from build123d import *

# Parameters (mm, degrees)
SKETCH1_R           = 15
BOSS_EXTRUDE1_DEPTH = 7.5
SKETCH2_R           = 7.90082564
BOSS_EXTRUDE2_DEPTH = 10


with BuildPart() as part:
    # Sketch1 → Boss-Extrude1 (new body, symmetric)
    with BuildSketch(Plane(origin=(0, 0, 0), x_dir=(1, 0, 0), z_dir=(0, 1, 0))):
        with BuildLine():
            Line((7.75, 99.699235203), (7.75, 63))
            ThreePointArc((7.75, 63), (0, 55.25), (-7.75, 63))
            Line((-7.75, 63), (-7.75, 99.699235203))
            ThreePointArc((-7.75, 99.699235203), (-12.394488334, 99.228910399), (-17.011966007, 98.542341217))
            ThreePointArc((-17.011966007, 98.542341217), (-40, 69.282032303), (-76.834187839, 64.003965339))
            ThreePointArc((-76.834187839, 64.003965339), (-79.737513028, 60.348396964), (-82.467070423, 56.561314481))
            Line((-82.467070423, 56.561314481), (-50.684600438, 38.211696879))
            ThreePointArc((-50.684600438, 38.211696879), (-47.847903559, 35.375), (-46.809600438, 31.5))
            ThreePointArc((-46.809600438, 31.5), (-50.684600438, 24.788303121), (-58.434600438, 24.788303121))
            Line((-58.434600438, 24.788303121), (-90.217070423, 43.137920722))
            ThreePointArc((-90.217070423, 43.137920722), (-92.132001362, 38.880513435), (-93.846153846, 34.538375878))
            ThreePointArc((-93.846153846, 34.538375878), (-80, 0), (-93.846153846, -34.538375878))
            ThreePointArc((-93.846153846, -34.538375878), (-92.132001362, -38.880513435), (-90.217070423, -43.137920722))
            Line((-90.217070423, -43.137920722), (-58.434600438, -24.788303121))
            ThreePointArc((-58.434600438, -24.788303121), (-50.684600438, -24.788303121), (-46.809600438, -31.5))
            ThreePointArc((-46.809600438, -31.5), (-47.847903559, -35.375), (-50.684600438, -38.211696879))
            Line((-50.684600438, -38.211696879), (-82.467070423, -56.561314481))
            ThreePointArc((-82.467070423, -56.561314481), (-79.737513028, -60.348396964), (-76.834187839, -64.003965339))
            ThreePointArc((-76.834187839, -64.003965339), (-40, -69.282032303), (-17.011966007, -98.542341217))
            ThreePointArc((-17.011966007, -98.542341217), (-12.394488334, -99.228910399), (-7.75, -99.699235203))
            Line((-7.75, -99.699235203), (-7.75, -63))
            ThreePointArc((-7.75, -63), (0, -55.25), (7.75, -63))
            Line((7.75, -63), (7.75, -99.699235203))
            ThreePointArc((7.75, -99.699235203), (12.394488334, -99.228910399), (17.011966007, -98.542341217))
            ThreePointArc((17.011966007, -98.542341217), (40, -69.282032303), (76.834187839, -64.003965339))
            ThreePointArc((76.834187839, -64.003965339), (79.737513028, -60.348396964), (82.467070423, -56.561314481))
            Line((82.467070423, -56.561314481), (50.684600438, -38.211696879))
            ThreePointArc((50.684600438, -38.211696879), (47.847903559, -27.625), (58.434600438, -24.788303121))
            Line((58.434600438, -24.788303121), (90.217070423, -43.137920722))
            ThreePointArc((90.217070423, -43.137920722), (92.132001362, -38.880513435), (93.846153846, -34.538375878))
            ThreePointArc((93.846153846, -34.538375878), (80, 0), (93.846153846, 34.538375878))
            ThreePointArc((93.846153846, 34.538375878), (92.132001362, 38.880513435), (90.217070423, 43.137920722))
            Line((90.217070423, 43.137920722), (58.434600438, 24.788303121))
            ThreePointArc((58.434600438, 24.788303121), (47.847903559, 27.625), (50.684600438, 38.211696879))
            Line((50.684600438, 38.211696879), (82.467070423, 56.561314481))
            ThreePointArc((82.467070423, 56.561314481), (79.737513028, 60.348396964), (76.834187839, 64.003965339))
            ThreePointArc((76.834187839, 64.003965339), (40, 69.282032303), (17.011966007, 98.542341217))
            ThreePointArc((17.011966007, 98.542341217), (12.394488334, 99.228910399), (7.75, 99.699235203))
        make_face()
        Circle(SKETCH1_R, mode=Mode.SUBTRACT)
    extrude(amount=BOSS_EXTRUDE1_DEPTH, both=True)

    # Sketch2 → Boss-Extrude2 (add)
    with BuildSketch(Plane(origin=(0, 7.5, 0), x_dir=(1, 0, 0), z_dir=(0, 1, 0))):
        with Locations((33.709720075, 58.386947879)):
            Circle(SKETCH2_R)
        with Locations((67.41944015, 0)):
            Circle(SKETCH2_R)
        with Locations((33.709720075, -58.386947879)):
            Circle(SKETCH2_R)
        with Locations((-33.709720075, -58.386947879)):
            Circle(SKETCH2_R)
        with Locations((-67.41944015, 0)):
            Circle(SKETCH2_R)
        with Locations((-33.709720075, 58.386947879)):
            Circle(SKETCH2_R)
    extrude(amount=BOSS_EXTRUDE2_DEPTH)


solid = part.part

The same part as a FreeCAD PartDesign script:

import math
import FreeCAD as App
import Part
import Sketcher
Q = App.Units.Quantity

doc = App.newDocument("Part")
body = doc.addObject("PartDesign::Body", "Body")

# Sketch on XZ plane
sketch1 = body.newObject("Sketcher::SketchObject", "Sketch")
sketch1.AttachmentSupport = (doc.getObject("XZ_Plane"), [""])
sketch1.MapMode = "FlatFace"
sketch1.addGeometry([
    Part.LineSegment(App.Vector(8, -100, 0), App.Vector(8, -63, 0)),  # 0
    Part.ArcOfCircle(Part.Circle(App.Vector(0, -63, 0), App.Vector(0, 0, 1), 8), math.radians(0), math.radians(180)),  # 1
    Part.LineSegment(App.Vector(-8, -63, 0), App.Vector(-8, -100, 0)),  # 2
    Part.ArcOfCircle(Part.Circle(App.Vector(0, 0, 0), App.Vector(0, 0, 1), 100), math.radians(-99.79), math.radians(-94.44)),  # 3
    Part.ArcOfCircle(Part.Circle(App.Vector(-65, -113, 0), App.Vector(0, 0, 1), 50), math.radians(16), math.radians(104)),  # 4
    Part.ArcOfCircle(Part.Circle(App.Vector(0, 0, 0), App.Vector(0, 0, 1), 100), math.radians(-145.56), math.radians(-140.21)),  # 5
    Part.LineSegment(App.Vector(-82, -57, 0), App.Vector(-51, -38, 0)),  # 6
    Part.ArcOfCircle(Part.Circle(App.Vector(-55, -31, 0), App.Vector(0, 0, 1), 8), math.radians(-60), math.radians(0)),  # 7
    Part.ArcOfCircle(Part.Circle(App.Vector(-55, -32, 0), App.Vector(0, 0, 1), 8), math.radians(0), math.radians(120)),  # 8
    Part.LineSegment(App.Vector(-58, -25, 0), App.Vector(-90, -43, 0)),  # 9
    Part.ArcOfCircle(Part.Circle(App.Vector(0, 0, 0), App.Vector(0, 0, 1), 100), math.radians(-159.79), math.radians(-154.44)),  # 10
    Part.ArcOfCircle(Part.Circle(App.Vector(-130, 0, 0), App.Vector(0, 0, 1), 50), math.radians(-44), math.radians(44)),  # 11
    Part.ArcOfCircle(Part.Circle(App.Vector(0, 0, 0), App.Vector(0, 0, 1), 100), math.radians(154.44), math.radians(159.79)),  # 12
    Part.LineSegment(App.Vector(-90, 43, 0), App.Vector(-58, 25, 0)),  # 13
    Part.ArcOfCircle(Part.Circle(App.Vector(-55, 32, 0), App.Vector(0, 0, 1), 8), math.radians(-120), math.radians(0)),  # 14
    Part.ArcOfCircle(Part.Circle(App.Vector(-55, 31, 0), App.Vector(0, 0, 1), 8), math.radians(0), math.radians(60)),  # 15
    Part.LineSegment(App.Vector(-51, 38, 0), App.Vector(-82, 57, 0)),  # 16
    Part.ArcOfCircle(Part.Circle(App.Vector(0, 0, 0), App.Vector(0, 0, 1), 100), math.radians(140.21), math.radians(145.56)),  # 17
    Part.ArcOfCircle(Part.Circle(App.Vector(-65, 113, 0), App.Vector(0, 0, 1), 50), math.radians(-104), math.radians(-16)),  # 18
    Part.ArcOfCircle(Part.Circle(App.Vector(0, 0, 0), App.Vector(0, 0, 1), 100), math.radians(94.44), math.radians(99.79)),  # 19
    Part.LineSegment(App.Vector(-8, 100, 0), App.Vector(-8, 63, 0)),  # 20
    Part.ArcOfCircle(Part.Circle(App.Vector(0, 63, 0), App.Vector(0, 0, 1), 8), math.radians(180), math.radians(360)),  # 21
    Part.LineSegment(App.Vector(8, 63, 0), App.Vector(8, 100, 0)),  # 22
    Part.ArcOfCircle(Part.Circle(App.Vector(0, 0, 0), App.Vector(0, 0, 1), 100), math.radians(80.21), math.radians(85.56)),  # 23
    Part.ArcOfCircle(Part.Circle(App.Vector(65, 113, 0), App.Vector(0, 0, 1), 50), math.radians(-164), math.radians(-76)),  # 24
    Part.ArcOfCircle(Part.Circle(App.Vector(0, 0, 0), App.Vector(0, 0, 1), 100), math.radians(34.44), math.radians(39.79)),  # 25
    Part.LineSegment(App.Vector(82, 57, 0), App.Vector(51, 38, 0)),  # 26
    Part.ArcOfCircle(Part.Circle(App.Vector(55, 32, 0), App.Vector(0, 0, 1), 8), math.radians(120), math.radians(300)),  # 27
    Part.LineSegment(App.Vector(58, 25, 0), App.Vector(90, 43, 0)),  # 28
    Part.ArcOfCircle(Part.Circle(App.Vector(0, 0, 0), App.Vector(0, 0, 1), 100), math.radians(20.21), math.radians(25.56)),  # 29
    Part.ArcOfCircle(Part.Circle(App.Vector(130, 0, 0), App.Vector(0, 0, 1), 50), math.radians(136), math.radians(224)),  # 30
    Part.ArcOfCircle(Part.Circle(App.Vector(0, 0, 0), App.Vector(0, 0, 1), 100), math.radians(-25.56), math.radians(-20.21)),  # 31
    Part.LineSegment(App.Vector(90, -43, 0), App.Vector(58, -25, 0)),  # 32
    Part.ArcOfCircle(Part.Circle(App.Vector(55, -32, 0), App.Vector(0, 0, 1), 8), math.radians(60), math.radians(240)),  # 33
    Part.LineSegment(App.Vector(51, -38, 0), App.Vector(82, -57, 0)),  # 34
    Part.ArcOfCircle(Part.Circle(App.Vector(0, 0, 0), App.Vector(0, 0, 1), 100), math.radians(-39.79), math.radians(-34.44)),  # 35
    Part.ArcOfCircle(Part.Circle(App.Vector(65, -113, 0), App.Vector(0, 0, 1), 50), math.radians(76), math.radians(164)),  # 36
    Part.ArcOfCircle(Part.Circle(App.Vector(0, 0, 0), App.Vector(0, 0, 1), 100), math.radians(-85.56), math.radians(-80.21)),  # 37
    Part.Circle(App.Vector(0, 0, 0), App.Vector(0, 0, 1), 15),  # 38
], False)
sketch1.addConstraint([
    Sketcher.Constraint("Tangent", 0, 2, 1, 1),
    Sketcher.Constraint("Tangent", 1, 2, 2, 1),
    Sketcher.Constraint("Coincident", 2, 2, 3, 2),
    Sketcher.Constraint("Coincident", 3, 1, 4, 1),
    Sketcher.Constraint("Coincident", 4, 2, 5, 2),
    Sketcher.Constraint("Coincident", 5, 1, 6, 1),
    Sketcher.Constraint("Tangent", 6, 2, 7, 1),
    Sketcher.Constraint("Tangent", 7, 2, 8, 1),
    Sketcher.Constraint("Tangent", 8, 2, 9, 1),
    Sketcher.Constraint("Coincident", 9, 2, 10, 2),
    Sketcher.Constraint("Coincident", 10, 1, 11, 1),
    Sketcher.Constraint("Coincident", 11, 2, 12, 2),
    Sketcher.Constraint("Coincident", 12, 1, 13, 1),
    Sketcher.Constraint("Tangent", 13, 2, 14, 1),
    Sketcher.Constraint("Tangent", 14, 2, 15, 1),
    Sketcher.Constraint("Tangent", 15, 2, 16, 1),
    Sketcher.Constraint("Coincident", 16, 2, 17, 2),
    Sketcher.Constraint("Coincident", 17, 1, 18, 1),
    Sketcher.Constraint("Coincident", 18, 2, 19, 2),
    Sketcher.Constraint("Coincident", 19, 1, 20, 1),
    Sketcher.Constraint("Tangent", 20, 2, 21, 1),
    Sketcher.Constraint("Tangent", 21, 2, 22, 1),
    Sketcher.Constraint("Coincident", 22, 2, 23, 2),
    Sketcher.Constraint("Coincident", 23, 1, 24, 1),
    Sketcher.Constraint("Coincident", 24, 2, 25, 2),
    Sketcher.Constraint("Coincident", 25, 1, 26, 1),
    Sketcher.Constraint("Tangent", 26, 2, 27, 1),
    Sketcher.Constraint("Tangent", 27, 2, 28, 1),
    Sketcher.Constraint("Coincident", 28, 2, 29, 2),
    Sketcher.Constraint("Coincident", 29, 1, 30, 1),
    Sketcher.Constraint("Coincident", 30, 2, 31, 2),
    Sketcher.Constraint("Coincident", 31, 1, 32, 1),
    Sketcher.Constraint("Tangent", 32, 2, 33, 1),
    Sketcher.Constraint("Tangent", 33, 2, 34, 1),
    Sketcher.Constraint("Coincident", 34, 2, 35, 2),
    Sketcher.Constraint("Coincident", 35, 1, 36, 1),
    Sketcher.Constraint("Coincident", 36, 2, 37, 2),
    Sketcher.Constraint("Coincident", 37, 1, 0, 1),
    Sketcher.Constraint("Vertical", 0),
    Sketcher.Constraint("Vertical", 2),
    Sketcher.Constraint("Vertical", 20),
    Sketcher.Constraint("Vertical", 22),
    Sketcher.Constraint("Coincident", 3, 3, -1, 1),
    Sketcher.Constraint("Coincident", 5, 3, -1, 1),
    Sketcher.Constraint("Coincident", 10, 3, -1, 1),
    Sketcher.Constraint("Coincident", 12, 3, -1, 1),
    Sketcher.Constraint("Coincident", 17, 3, -1, 1),
    Sketcher.Constraint("Coincident", 19, 3, -1, 1),
    Sketcher.Constraint("Coincident", 23, 3, -1, 1),
    Sketcher.Constraint("Coincident", 25, 3, -1, 1),
    Sketcher.Constraint("Coincident", 29, 3, -1, 1),
    Sketcher.Constraint("Coincident", 31, 3, -1, 1),
    Sketcher.Constraint("Coincident", 35, 3, -1, 1),
    Sketcher.Constraint("Coincident", 37, 3, -1, 1),
    Sketcher.Constraint("Coincident", 38, 3, -1, 1),
    Sketcher.Constraint("Equal", 3, 5),
    Sketcher.Constraint("Equal", 1, 7),
    Sketcher.Constraint("Equal", 7, 8),
    Sketcher.Constraint("Equal", 5, 10),
    Sketcher.Constraint("Equal", 4, 11),
    Sketcher.Constraint("Equal", 10, 12),
    Sketcher.Constraint("Equal", 8, 14),
    Sketcher.Constraint("Equal", 14, 15),
    Sketcher.Constraint("Equal", 12, 17),
    Sketcher.Constraint("Equal", 11, 18),
    Sketcher.Constraint("Equal", 17, 19),
    Sketcher.Constraint("Equal", 15, 21),
    Sketcher.Constraint("Equal", 19, 23),
    Sketcher.Constraint("Equal", 18, 24),
    Sketcher.Constraint("Equal", 23, 25),
    Sketcher.Constraint("Equal", 21, 27),
    Sketcher.Constraint("Equal", 25, 29),
    Sketcher.Constraint("Equal", 24, 30),
    Sketcher.Constraint("Equal", 29, 31),
    Sketcher.Constraint("Equal", 27, 33),
    Sketcher.Constraint("Equal", 31, 35),
    Sketcher.Constraint("Equal", 30, 36),
    Sketcher.Constraint("Equal", 35, 37),
    Sketcher.Constraint("Symmetric", 1, 3, 21, 3, -1, 1),
    Sketcher.Constraint("Symmetric", 4, 3, 24, 3, -1, 1),
    Sketcher.Constraint("Symmetric", 7, 3, 27, 3, -1, 1),
    Sketcher.Constraint("Symmetric", 11, 3, 30, 3, -1, 1),
    Sketcher.Constraint("Symmetric", 14, 3, 33, 3, -1, 1),
    Sketcher.Constraint("Symmetric", 18, 3, 36, 3, -1, 1),
    Sketcher.Constraint("Symmetric", 18, 3, 24, 3, -2),
    Sketcher.Constraint("Symmetric", 14, 3, 27, 3, -2),
    Sketcher.Constraint("PointOnObject", 1, 3, -2),
    Sketcher.Constraint("PointOnObject", 11, 3, -1),
    Sketcher.Constraint("Parallel", 6, 9),
    Sketcher.Constraint("Parallel", 13, 16),
    Sketcher.Constraint("Parallel", 9, 26),
    Sketcher.Constraint("Parallel", 26, 28),
    Sketcher.Constraint("Parallel", 16, 32),
    Sketcher.Constraint("Parallel", 32, 34),
    Sketcher.Constraint("Horizontal", 33, 3, 7, 2),
    Sketcher.Constraint("Horizontal", 27, 3, 14, 2),
    Sketcher.Constraint("Horizontal", 16, 2, 25, 1),
    Sketcher.Constraint("Equal", 6, 9),
    Sketcher.Constraint("Diameter", 38, Q("30 mm")),
    Sketcher.Constraint("Radius", 3, Q("100 mm")),
    Sketcher.Constraint("Radius", 4, Q("50 mm")),
    Sketcher.Constraint("Angle", 6, Q("30 deg")),
    Sketcher.Constraint("Radius", 1, Q("7.75 mm")),
    Sketcher.Constraint("DistanceY", 1, 3, -1, 1, Q("63 mm")),
    Sketcher.Constraint("DistanceX", 4, 3, -1, 1, Q("65 mm")),
    Sketcher.Constraint("DistanceX", 11, 3, -1, 1, Q("130 mm")),
    Sketcher.Constraint("DistanceY", 7, 3, -1, 1, Q("31.5 mm")),
    Sketcher.Constraint("DistanceY", 4, 3, -1, 1, Q("112.583302 mm")),
])
pad1 = body.newObject("PartDesign::Pad", "Pad")
pad1.Profile = sketch1
pad1.Length = 15
pad1.Midplane = True

# Sketch on XZ plane
sketch2 = body.newObject("Sketcher::SketchObject", "Sketch001")
sketch2.AttachmentSupport = (doc.getObject("XZ_Plane"), [""])
sketch2.MapMode = "FlatFace"
sketch2.AttachmentOffset = App.Placement(App.Vector(0, 0, -7.5), App.Rotation())
sketch2.addGeometry([
    Part.Circle(App.Vector(34, -58, 0), App.Vector(0, 0, 1), 8),  # 0
    Part.Circle(App.Vector(67, 0, 0), App.Vector(0, 0, 1), 8),  # 1
    Part.Circle(App.Vector(34, 58, 0), App.Vector(0, 0, 1), 8),  # 2
    Part.Circle(App.Vector(-34, 58, 0), App.Vector(0, 0, 1), 8),  # 3
    Part.Circle(App.Vector(-67, 0, 0), App.Vector(0, 0, 1), 8),  # 4
    Part.Circle(App.Vector(-34, -58, 0), App.Vector(0, 0, 1), 8),  # 5
], False)
sketch2.addConstraint([
    Sketcher.Constraint("Equal", 0, 1),
    Sketcher.Constraint("Equal", 1, 2),
    Sketcher.Constraint("Equal", 2, 3),
    Sketcher.Constraint("Equal", 3, 4),
    Sketcher.Constraint("Equal", 4, 5),
    Sketcher.Constraint("Symmetric", 0, 3, 3, 3, -1, 1),
    Sketcher.Constraint("Symmetric", 1, 3, 4, 3, -1, 1),
    Sketcher.Constraint("Symmetric", 2, 3, 5, 3, -1, 1),
    Sketcher.Constraint("Symmetric", 2, 3, 3, 3, -2),
    Sketcher.Constraint("PointOnObject", 1, 3, -1),
    Sketcher.Constraint("Diameter", 0, Q("15.801651 mm")),
    Sketcher.Constraint("DistanceX", -1, 1, 0, 3, Q("33.70972 mm")),
    Sketcher.Constraint("DistanceX", -1, 1, 1, 3, Q("67.41944 mm")),
    Sketcher.Constraint("DistanceY", 0, 3, -1, 1, Q("58.386948 mm")),
])
pad2 = body.newObject("PartDesign::Pad", "Pad001")
pad2.Profile = sketch2
pad2.Length = 10
pad2.Reversed = True

doc.recompute()
